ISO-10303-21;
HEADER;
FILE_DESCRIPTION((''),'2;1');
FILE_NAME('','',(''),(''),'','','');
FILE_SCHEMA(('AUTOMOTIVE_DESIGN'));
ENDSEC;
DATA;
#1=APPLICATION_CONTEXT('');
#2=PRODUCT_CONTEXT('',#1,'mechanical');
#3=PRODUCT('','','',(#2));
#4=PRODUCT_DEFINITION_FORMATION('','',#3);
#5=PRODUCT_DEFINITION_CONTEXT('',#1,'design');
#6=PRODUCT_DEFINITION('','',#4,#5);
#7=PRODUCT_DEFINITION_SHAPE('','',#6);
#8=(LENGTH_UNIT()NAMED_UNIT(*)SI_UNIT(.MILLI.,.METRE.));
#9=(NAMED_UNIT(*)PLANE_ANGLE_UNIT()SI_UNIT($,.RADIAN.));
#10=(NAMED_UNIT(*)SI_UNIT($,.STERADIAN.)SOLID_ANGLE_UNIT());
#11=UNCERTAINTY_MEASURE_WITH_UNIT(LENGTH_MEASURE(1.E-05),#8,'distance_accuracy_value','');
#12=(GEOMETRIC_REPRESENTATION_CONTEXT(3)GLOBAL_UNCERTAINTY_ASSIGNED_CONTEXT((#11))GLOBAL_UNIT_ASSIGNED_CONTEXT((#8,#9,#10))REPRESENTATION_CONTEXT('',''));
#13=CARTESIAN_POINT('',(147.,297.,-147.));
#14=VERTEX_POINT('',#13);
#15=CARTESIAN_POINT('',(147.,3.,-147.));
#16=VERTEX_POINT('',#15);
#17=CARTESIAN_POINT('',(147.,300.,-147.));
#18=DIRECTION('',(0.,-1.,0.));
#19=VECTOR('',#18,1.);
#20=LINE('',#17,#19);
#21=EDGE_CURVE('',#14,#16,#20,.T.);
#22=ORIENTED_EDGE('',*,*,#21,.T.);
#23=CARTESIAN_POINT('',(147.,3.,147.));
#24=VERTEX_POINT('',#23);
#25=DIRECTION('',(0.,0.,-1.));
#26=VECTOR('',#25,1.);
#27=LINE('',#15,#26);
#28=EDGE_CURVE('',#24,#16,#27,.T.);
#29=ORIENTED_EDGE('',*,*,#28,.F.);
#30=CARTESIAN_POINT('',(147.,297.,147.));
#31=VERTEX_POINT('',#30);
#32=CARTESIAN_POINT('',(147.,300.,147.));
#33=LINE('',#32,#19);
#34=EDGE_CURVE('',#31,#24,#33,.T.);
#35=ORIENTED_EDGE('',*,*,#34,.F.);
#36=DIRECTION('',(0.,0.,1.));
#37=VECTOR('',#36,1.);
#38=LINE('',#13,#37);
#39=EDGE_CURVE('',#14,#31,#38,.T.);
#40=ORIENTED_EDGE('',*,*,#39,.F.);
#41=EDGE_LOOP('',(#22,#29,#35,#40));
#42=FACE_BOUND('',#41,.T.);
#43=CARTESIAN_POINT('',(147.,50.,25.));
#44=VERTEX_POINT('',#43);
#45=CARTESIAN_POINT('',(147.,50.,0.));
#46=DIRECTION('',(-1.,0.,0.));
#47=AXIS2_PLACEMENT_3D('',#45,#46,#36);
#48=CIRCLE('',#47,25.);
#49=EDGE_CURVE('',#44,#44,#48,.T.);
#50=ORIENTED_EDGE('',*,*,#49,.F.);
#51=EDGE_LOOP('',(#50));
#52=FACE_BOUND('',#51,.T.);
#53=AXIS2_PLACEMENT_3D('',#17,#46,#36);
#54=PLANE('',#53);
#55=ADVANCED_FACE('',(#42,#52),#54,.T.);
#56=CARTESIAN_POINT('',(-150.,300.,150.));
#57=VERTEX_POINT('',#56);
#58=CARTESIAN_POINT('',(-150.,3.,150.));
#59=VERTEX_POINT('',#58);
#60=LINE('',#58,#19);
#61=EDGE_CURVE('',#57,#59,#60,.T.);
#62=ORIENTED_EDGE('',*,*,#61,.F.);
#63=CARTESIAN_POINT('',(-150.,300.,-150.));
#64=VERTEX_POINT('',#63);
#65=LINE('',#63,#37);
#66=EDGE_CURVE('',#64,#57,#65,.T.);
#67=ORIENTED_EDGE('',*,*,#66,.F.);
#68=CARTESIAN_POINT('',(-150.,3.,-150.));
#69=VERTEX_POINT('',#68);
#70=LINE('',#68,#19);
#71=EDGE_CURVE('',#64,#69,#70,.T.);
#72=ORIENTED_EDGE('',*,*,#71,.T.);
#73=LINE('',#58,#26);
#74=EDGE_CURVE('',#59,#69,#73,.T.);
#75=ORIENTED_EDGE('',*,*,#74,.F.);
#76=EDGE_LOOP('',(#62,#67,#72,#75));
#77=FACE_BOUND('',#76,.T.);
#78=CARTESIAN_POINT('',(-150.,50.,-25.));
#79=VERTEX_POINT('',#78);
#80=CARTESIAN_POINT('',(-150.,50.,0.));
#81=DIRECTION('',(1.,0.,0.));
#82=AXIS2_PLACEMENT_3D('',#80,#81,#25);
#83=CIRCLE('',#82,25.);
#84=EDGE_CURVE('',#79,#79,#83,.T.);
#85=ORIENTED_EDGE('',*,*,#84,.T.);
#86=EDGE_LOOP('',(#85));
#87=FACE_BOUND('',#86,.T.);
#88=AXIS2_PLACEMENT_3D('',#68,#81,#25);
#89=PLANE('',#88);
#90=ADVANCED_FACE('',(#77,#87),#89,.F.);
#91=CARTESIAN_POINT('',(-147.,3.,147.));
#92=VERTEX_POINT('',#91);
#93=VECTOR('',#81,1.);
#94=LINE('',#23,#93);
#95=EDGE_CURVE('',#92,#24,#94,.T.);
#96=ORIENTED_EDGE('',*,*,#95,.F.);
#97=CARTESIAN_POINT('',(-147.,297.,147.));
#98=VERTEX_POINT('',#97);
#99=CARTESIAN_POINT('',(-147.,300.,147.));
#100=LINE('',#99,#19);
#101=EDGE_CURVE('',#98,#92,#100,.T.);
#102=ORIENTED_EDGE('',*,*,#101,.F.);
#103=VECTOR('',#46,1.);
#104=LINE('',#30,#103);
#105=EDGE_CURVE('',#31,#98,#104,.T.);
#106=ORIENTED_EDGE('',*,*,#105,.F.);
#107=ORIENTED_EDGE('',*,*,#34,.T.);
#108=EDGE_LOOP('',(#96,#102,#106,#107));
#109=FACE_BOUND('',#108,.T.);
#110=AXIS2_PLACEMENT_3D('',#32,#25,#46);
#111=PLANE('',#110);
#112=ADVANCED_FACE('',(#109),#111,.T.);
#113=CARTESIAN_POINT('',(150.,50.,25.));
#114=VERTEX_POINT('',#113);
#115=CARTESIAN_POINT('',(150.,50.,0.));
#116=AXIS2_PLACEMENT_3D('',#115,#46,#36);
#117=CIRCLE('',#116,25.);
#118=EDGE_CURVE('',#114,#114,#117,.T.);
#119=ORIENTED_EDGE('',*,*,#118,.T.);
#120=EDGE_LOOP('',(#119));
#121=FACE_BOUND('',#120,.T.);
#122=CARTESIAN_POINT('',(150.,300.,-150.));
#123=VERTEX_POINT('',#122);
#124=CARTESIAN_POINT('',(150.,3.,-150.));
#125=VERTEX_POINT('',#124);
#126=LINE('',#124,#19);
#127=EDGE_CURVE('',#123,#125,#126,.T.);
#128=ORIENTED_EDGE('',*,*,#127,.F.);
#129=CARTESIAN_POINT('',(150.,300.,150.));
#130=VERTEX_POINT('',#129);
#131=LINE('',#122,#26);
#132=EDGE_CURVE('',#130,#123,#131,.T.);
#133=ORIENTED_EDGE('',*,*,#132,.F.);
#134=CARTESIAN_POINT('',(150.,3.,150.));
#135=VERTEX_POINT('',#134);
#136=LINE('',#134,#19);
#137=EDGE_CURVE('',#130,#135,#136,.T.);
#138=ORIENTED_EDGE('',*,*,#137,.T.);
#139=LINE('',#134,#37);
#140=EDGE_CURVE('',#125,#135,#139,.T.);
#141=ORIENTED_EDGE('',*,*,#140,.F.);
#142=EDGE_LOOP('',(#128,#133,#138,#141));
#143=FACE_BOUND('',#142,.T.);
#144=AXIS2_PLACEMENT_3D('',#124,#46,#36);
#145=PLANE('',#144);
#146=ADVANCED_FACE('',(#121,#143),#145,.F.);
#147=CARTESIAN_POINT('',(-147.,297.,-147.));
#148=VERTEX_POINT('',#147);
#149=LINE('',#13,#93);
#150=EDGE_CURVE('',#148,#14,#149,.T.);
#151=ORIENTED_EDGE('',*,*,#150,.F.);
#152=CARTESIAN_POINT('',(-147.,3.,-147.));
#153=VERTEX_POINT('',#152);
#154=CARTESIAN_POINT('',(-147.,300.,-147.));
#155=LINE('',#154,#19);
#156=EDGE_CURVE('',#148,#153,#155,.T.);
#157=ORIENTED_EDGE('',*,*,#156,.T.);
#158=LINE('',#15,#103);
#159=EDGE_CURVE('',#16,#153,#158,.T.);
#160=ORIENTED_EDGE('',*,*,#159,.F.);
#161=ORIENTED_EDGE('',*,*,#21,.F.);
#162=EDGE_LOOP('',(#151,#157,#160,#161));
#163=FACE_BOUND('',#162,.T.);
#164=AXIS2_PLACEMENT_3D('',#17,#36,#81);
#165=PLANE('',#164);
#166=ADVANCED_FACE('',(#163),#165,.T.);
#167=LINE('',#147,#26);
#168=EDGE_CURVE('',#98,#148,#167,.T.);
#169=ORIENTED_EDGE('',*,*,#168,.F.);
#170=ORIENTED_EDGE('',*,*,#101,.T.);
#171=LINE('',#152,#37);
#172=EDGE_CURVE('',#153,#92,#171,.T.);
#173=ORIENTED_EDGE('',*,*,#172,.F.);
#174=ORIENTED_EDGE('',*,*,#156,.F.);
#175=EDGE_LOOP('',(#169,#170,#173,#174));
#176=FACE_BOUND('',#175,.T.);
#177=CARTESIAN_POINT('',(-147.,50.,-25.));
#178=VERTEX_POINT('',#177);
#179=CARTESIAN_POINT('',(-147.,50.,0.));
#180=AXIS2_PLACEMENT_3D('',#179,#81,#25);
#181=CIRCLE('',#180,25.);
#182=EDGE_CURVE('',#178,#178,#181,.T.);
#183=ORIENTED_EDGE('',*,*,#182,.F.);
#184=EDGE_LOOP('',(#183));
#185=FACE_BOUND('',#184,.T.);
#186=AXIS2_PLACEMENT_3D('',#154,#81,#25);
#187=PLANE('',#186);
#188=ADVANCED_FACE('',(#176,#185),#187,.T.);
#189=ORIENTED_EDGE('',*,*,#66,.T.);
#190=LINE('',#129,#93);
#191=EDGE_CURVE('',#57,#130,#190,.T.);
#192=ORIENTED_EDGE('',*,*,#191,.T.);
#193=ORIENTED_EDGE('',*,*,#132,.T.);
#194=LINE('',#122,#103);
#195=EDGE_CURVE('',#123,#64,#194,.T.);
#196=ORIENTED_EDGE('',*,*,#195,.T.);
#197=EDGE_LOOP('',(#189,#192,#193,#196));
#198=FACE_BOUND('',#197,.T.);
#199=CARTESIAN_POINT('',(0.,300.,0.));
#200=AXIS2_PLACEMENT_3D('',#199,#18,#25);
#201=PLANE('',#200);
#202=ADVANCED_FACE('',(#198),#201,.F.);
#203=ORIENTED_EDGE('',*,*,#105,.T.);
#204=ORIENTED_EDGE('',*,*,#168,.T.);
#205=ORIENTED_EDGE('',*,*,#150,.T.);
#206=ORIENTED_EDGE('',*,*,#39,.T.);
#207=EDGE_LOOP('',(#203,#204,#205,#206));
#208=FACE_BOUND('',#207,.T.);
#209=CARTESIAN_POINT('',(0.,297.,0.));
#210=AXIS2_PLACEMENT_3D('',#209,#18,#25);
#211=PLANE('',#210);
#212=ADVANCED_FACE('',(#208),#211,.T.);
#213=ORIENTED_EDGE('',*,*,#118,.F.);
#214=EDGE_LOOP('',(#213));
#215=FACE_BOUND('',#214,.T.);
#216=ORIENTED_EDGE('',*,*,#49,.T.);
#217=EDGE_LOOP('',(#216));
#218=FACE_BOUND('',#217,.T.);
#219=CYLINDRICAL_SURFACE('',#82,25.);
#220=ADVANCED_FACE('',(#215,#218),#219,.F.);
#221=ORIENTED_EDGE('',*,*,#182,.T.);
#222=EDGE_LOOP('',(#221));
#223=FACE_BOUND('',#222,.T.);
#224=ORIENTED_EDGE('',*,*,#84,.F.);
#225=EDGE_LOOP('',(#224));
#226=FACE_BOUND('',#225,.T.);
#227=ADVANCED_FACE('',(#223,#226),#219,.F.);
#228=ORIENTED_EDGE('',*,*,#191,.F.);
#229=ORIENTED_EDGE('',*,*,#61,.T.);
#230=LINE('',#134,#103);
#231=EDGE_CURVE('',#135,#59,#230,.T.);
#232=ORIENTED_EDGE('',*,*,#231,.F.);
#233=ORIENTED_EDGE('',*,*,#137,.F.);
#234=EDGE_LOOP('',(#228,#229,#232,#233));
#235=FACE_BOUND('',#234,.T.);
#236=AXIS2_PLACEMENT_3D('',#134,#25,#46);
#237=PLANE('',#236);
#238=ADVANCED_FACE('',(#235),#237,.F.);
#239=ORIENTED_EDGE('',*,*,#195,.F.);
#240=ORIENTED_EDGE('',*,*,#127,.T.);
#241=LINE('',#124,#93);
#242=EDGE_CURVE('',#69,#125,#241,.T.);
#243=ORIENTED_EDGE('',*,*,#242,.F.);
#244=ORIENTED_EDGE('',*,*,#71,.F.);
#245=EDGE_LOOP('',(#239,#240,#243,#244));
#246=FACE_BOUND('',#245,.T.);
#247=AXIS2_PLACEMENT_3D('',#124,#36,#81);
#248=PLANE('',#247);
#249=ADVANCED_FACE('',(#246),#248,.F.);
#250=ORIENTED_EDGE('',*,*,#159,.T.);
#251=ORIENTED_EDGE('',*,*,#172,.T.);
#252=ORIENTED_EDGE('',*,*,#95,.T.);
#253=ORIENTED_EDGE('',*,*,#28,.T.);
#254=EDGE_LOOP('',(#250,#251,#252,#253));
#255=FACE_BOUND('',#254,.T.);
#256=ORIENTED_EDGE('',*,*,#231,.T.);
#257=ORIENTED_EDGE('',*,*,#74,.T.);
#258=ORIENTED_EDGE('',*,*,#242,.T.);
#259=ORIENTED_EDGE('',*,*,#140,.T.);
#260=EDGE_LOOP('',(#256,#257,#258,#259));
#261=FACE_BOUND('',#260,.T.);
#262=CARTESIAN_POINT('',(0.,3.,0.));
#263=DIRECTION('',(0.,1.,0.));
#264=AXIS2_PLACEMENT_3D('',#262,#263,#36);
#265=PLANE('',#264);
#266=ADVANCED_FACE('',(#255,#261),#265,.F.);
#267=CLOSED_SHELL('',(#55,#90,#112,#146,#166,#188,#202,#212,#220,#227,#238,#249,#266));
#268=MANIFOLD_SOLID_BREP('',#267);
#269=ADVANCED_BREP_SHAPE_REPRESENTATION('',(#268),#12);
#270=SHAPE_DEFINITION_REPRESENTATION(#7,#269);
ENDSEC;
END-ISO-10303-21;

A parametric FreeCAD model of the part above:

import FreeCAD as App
import Part
import Sketcher
from FreeCAD import Vector

doc = App.newDocument("Part")
body = doc.addObject("PartDesign::Body", "Body")

# Sketch on XZ plane
sketch1 = doc.addObject("Sketcher::SketchObject", "Sketch")
body.addObject(sketch1)
sketch1.AttachmentSupport = (doc.XZ_Plane, [""])
sketch1.MapMode = "FlatFace"
sketch1.addGeometry([
    Part.LineSegment(Vector(-150, -150, 0), Vector(-150, 150, 0)),
    Part.LineSegment(Vector(-150, 150, 0), Vector(150, 150, 0)),
    Part.LineSegment(Vector(150, 150, 0), Vector(150, -150, 0)),
    Part.LineSegment(Vector(150, -150, 0), Vector(-150, -150, 0)),
], False)
sketch1.addConstraint([
    Sketcher.Constraint("Coincident", 0, 2, 1, 1),
    Sketcher.Constraint("Coincident", 1, 2, 2, 1),
    Sketcher.Constraint("Coincident", 2, 2, 3, 1),
    Sketcher.Constraint("Coincident", 3, 2, 0, 1),
    Sketcher.Constraint("Vertical", 0),
    Sketcher.Constraint("Horizontal", 1),
    Sketcher.Constraint("Vertical", 2),
    Sketcher.Constraint("Horizontal", 3),
    Sketcher.Constraint("Symmetric", 0, 2, 2, 2, -1, 1),
    Sketcher.Constraint("Equal", 3, 0),
    Sketcher.Constraint("DistanceX", 1, 1, 1, 2, 300.0),
])
pad1 = doc.addObject("PartDesign::Pad", "Pad")
body.addObject(pad1)
pad1.Profile = sketch1
pad1.Length = 3
pad1.Reversed = True

# Sketch on XZ plane
sketch2 = doc.addObject("Sketcher::SketchObject", "Sketch001")
body.addObject(sketch2)
sketch2.AttachmentSupport = (doc.XZ_Plane, [""])
sketch2.MapMode = "FlatFace"
sketch2.AttachmentOffset = App.Placement(Vector(0, 0, -3), App.Rotation())
sketch2.addGeometry([
    Part.LineSegment(Vector(-150, -150, 0), Vector(-150, 150, 0)),  # 0
    Part.LineSegment(Vector(-150, 150, 0), Vector(150, 150, 0)),  # 1
    Part.LineSegment(Vector(150, 150, 0), Vector(150, -150, 0)),  # 2
    Part.LineSegment(Vector(150, -150, 0), Vector(-150, -150, 0)),  # 3
    Part.LineSegment(Vector(147, 147, 0), Vector(-147, 147, 0)),  # 4
    Part.LineSegment(Vector(-147, 147, 0), Vector(-147, -147, 0)),  # 5
    Part.LineSegment(Vector(-147, -147, 0), Vector(147, -147, 0)),  # 6
    Part.LineSegment(Vector(147, -147, 0), Vector(147, 147, 0)),  # 7
], False)
sketch2.addConstraint([
    Sketcher.Constraint("Coincident", 0, 2, 1, 1),
    Sketcher.Constraint("Coincident", 1, 2, 2, 1),
    Sketcher.Constraint("Coincident", 2, 2, 3, 1),
    Sketcher.Constraint("Coincident", 3, 2, 0, 1),
    Sketcher.Constraint("Coincident", 4, 2, 5, 1),
    Sketcher.Constraint("Coincident", 5, 2, 6, 1),
    Sketcher.Constraint("Coincident", 6, 2, 7, 1),
    Sketcher.Constraint("Coincident", 7, 2, 4, 1),
    Sketcher.Constraint("Vertical", 0),
    Sketcher.Constraint("Horizontal", 1),
    Sketcher.Constraint("Vertical", 2),
    Sketcher.Constraint("Horizontal", 3),
    Sketcher.Constraint("Horizontal", 4),
    Sketcher.Constraint("Vertical", 5),
    Sketcher.Constraint("Horizontal", 6),
    Sketcher.Constraint("Vertical", 7),
    Sketcher.Constraint("Symmetric", 0, 2, 2, 2, -1, 1),
    Sketcher.Constraint("Symmetric", 4, 2, 6, 2, -1, 1),
    Sketcher.Constraint("Equal", 3, 0),
    Sketcher.Constraint("Equal", 6, 5),
    Sketcher.Constraint("DistanceX", 1, 1, 1, 2, 300.0),
    Sketcher.Constraint("DistanceX", 4, 2, 4, 1, 294.0),
])
pad2 = doc.addObject("PartDesign::Pad", "Pad001")
body.addObject(pad2)
pad2.Profile = sketch2
pad2.Length = 297
pad2.Reversed = True

# Sketch on XZ plane
sketch3 = doc.addObject("Sketcher::SketchObject", "Sketch002")
body.addObject(sketch3)
sketch3.AttachmentSupport = (doc.XZ_Plane, [""])
sketch3.MapMode = "FlatFace"
sketch3.AttachmentOffset = App.Placement(Vector(0, 0, -300), App.Rotation())
sketch3.addGeometry([
    Part.LineSegment(Vector(-150, -150, 0), Vector(-150, 150, 0)),
    Part.LineSegment(Vector(-150, 150, 0), Vector(150, 150, 0)),
    Part.LineSegment(Vector(150, 150, 0), Vector(150, -150, 0)),
    Part.LineSegment(Vector(150, -150, 0), Vector(-150, -150, 0)),
], False)
sketch3.addConstraint([
    Sketcher.Constraint("Coincident", 0, 2, 1, 1),
    Sketcher.Constraint("Coincident", 1, 2, 2, 1),
    Sketcher.Constraint("Coincident", 2, 2, 3, 1),
    Sketcher.Constraint("Coincident", 3, 2, 0, 1),
    Sketcher.Constraint("Vertical", 0),
    Sketcher.Constraint("Horizontal", 1),
    Sketcher.Constraint("Vertical", 2),
    Sketcher.Constraint("Horizontal", 3),
    Sketcher.Constraint("Symmetric", 0, 2, 2, 2, -1, 1),
    Sketcher.Constraint("Equal", 3, 0),
    Sketcher.Constraint("DistanceX", 1, 1, 1, 2, 300.0),
])
pad3 = doc.addObject("PartDesign::Pad", "Pad002")
body.addObject(pad3)
pad3.Profile = sketch3
pad3.Length = 3

# Sketch on YZ plane
sketch4 = doc.addObject("Sketcher::SketchObject", "Sketch003")
body.addObject(sketch4)
sketch4.AttachmentSupport = (doc.YZ_Plane, [""])
sketch4.MapMode = "FlatFace"
sketch4.AttachmentOffset = App.Placement(Vector(0, 0, 150), App.Rotation())
sketch4.addGeometry(Part.Circle(Vector(50, 0, 0), Vector(0, 0, 1), 25), False)
sketch4.addConstraint([
    Sketcher.Constraint("PointOnObject", 0, 3, -1),
    Sketcher.Constraint("Diameter", 0, 50.0),
    Sketcher.Constraint("DistanceX", -1, 1, 0, 3, 50.0),
])
pocket1 = doc.addObject("PartDesign::Pocket", "Pocket")
body.addObject(pocket1)
pocket1.Profile = sketch4
pocket1.Type = "ThroughAll"
pocket1.Midplane = True

# Sketch on XZ plane
sketch5 = doc.addObject("Sketcher::SketchObject", "Sketch004")
body.addObject(sketch5)
sketch5.AttachmentSupport = (doc.XZ_Plane, [""])
sketch5.MapMode = "FlatFace"
sketch5.addGeometry([
    Part.LineSegment(Vector(-150, 150, 0), Vector(-150, -150, 0)),
    Part.LineSegment(Vector(-150, -150, 0), Vector(150, -150, 0)),
    Part.LineSegment(Vector(150, -150, 0), Vector(150, 150, 0)),
    Part.LineSegment(Vector(150, 150, 0), Vector(-150, 150, 0)),
], False)
sketch5.addConstraint([
    Sketcher.Constraint("Coincident", 0, 2, 1, 1),
    Sketcher.Constraint("Coincident", 1, 2, 2, 1),
    Sketcher.Constraint("Coincident", 2, 2, 3, 1),
    Sketcher.Constraint("Coincident", 3, 2, 0, 1),
    Sketcher.Constraint("Vertical", 0),
    Sketcher.Constraint("Horizontal", 1),
    Sketcher.Constraint("Vertical", 2),
    Sketcher.Constraint("Horizontal", 3),
    Sketcher.Constraint("Symmetric", 0, 2, 2, 2, -1, 1),
    Sketcher.Constraint("Equal", 3, 0),
    Sketcher.Constraint("DistanceX", 1, 1, 1, 2, 300.0),
])
pocket2 = doc.addObject("PartDesign::Pocket", "Pocket001")
body.addObject(pocket2)
pocket2.Profile = sketch5
pocket2.Length = 3

doc.recompute()
